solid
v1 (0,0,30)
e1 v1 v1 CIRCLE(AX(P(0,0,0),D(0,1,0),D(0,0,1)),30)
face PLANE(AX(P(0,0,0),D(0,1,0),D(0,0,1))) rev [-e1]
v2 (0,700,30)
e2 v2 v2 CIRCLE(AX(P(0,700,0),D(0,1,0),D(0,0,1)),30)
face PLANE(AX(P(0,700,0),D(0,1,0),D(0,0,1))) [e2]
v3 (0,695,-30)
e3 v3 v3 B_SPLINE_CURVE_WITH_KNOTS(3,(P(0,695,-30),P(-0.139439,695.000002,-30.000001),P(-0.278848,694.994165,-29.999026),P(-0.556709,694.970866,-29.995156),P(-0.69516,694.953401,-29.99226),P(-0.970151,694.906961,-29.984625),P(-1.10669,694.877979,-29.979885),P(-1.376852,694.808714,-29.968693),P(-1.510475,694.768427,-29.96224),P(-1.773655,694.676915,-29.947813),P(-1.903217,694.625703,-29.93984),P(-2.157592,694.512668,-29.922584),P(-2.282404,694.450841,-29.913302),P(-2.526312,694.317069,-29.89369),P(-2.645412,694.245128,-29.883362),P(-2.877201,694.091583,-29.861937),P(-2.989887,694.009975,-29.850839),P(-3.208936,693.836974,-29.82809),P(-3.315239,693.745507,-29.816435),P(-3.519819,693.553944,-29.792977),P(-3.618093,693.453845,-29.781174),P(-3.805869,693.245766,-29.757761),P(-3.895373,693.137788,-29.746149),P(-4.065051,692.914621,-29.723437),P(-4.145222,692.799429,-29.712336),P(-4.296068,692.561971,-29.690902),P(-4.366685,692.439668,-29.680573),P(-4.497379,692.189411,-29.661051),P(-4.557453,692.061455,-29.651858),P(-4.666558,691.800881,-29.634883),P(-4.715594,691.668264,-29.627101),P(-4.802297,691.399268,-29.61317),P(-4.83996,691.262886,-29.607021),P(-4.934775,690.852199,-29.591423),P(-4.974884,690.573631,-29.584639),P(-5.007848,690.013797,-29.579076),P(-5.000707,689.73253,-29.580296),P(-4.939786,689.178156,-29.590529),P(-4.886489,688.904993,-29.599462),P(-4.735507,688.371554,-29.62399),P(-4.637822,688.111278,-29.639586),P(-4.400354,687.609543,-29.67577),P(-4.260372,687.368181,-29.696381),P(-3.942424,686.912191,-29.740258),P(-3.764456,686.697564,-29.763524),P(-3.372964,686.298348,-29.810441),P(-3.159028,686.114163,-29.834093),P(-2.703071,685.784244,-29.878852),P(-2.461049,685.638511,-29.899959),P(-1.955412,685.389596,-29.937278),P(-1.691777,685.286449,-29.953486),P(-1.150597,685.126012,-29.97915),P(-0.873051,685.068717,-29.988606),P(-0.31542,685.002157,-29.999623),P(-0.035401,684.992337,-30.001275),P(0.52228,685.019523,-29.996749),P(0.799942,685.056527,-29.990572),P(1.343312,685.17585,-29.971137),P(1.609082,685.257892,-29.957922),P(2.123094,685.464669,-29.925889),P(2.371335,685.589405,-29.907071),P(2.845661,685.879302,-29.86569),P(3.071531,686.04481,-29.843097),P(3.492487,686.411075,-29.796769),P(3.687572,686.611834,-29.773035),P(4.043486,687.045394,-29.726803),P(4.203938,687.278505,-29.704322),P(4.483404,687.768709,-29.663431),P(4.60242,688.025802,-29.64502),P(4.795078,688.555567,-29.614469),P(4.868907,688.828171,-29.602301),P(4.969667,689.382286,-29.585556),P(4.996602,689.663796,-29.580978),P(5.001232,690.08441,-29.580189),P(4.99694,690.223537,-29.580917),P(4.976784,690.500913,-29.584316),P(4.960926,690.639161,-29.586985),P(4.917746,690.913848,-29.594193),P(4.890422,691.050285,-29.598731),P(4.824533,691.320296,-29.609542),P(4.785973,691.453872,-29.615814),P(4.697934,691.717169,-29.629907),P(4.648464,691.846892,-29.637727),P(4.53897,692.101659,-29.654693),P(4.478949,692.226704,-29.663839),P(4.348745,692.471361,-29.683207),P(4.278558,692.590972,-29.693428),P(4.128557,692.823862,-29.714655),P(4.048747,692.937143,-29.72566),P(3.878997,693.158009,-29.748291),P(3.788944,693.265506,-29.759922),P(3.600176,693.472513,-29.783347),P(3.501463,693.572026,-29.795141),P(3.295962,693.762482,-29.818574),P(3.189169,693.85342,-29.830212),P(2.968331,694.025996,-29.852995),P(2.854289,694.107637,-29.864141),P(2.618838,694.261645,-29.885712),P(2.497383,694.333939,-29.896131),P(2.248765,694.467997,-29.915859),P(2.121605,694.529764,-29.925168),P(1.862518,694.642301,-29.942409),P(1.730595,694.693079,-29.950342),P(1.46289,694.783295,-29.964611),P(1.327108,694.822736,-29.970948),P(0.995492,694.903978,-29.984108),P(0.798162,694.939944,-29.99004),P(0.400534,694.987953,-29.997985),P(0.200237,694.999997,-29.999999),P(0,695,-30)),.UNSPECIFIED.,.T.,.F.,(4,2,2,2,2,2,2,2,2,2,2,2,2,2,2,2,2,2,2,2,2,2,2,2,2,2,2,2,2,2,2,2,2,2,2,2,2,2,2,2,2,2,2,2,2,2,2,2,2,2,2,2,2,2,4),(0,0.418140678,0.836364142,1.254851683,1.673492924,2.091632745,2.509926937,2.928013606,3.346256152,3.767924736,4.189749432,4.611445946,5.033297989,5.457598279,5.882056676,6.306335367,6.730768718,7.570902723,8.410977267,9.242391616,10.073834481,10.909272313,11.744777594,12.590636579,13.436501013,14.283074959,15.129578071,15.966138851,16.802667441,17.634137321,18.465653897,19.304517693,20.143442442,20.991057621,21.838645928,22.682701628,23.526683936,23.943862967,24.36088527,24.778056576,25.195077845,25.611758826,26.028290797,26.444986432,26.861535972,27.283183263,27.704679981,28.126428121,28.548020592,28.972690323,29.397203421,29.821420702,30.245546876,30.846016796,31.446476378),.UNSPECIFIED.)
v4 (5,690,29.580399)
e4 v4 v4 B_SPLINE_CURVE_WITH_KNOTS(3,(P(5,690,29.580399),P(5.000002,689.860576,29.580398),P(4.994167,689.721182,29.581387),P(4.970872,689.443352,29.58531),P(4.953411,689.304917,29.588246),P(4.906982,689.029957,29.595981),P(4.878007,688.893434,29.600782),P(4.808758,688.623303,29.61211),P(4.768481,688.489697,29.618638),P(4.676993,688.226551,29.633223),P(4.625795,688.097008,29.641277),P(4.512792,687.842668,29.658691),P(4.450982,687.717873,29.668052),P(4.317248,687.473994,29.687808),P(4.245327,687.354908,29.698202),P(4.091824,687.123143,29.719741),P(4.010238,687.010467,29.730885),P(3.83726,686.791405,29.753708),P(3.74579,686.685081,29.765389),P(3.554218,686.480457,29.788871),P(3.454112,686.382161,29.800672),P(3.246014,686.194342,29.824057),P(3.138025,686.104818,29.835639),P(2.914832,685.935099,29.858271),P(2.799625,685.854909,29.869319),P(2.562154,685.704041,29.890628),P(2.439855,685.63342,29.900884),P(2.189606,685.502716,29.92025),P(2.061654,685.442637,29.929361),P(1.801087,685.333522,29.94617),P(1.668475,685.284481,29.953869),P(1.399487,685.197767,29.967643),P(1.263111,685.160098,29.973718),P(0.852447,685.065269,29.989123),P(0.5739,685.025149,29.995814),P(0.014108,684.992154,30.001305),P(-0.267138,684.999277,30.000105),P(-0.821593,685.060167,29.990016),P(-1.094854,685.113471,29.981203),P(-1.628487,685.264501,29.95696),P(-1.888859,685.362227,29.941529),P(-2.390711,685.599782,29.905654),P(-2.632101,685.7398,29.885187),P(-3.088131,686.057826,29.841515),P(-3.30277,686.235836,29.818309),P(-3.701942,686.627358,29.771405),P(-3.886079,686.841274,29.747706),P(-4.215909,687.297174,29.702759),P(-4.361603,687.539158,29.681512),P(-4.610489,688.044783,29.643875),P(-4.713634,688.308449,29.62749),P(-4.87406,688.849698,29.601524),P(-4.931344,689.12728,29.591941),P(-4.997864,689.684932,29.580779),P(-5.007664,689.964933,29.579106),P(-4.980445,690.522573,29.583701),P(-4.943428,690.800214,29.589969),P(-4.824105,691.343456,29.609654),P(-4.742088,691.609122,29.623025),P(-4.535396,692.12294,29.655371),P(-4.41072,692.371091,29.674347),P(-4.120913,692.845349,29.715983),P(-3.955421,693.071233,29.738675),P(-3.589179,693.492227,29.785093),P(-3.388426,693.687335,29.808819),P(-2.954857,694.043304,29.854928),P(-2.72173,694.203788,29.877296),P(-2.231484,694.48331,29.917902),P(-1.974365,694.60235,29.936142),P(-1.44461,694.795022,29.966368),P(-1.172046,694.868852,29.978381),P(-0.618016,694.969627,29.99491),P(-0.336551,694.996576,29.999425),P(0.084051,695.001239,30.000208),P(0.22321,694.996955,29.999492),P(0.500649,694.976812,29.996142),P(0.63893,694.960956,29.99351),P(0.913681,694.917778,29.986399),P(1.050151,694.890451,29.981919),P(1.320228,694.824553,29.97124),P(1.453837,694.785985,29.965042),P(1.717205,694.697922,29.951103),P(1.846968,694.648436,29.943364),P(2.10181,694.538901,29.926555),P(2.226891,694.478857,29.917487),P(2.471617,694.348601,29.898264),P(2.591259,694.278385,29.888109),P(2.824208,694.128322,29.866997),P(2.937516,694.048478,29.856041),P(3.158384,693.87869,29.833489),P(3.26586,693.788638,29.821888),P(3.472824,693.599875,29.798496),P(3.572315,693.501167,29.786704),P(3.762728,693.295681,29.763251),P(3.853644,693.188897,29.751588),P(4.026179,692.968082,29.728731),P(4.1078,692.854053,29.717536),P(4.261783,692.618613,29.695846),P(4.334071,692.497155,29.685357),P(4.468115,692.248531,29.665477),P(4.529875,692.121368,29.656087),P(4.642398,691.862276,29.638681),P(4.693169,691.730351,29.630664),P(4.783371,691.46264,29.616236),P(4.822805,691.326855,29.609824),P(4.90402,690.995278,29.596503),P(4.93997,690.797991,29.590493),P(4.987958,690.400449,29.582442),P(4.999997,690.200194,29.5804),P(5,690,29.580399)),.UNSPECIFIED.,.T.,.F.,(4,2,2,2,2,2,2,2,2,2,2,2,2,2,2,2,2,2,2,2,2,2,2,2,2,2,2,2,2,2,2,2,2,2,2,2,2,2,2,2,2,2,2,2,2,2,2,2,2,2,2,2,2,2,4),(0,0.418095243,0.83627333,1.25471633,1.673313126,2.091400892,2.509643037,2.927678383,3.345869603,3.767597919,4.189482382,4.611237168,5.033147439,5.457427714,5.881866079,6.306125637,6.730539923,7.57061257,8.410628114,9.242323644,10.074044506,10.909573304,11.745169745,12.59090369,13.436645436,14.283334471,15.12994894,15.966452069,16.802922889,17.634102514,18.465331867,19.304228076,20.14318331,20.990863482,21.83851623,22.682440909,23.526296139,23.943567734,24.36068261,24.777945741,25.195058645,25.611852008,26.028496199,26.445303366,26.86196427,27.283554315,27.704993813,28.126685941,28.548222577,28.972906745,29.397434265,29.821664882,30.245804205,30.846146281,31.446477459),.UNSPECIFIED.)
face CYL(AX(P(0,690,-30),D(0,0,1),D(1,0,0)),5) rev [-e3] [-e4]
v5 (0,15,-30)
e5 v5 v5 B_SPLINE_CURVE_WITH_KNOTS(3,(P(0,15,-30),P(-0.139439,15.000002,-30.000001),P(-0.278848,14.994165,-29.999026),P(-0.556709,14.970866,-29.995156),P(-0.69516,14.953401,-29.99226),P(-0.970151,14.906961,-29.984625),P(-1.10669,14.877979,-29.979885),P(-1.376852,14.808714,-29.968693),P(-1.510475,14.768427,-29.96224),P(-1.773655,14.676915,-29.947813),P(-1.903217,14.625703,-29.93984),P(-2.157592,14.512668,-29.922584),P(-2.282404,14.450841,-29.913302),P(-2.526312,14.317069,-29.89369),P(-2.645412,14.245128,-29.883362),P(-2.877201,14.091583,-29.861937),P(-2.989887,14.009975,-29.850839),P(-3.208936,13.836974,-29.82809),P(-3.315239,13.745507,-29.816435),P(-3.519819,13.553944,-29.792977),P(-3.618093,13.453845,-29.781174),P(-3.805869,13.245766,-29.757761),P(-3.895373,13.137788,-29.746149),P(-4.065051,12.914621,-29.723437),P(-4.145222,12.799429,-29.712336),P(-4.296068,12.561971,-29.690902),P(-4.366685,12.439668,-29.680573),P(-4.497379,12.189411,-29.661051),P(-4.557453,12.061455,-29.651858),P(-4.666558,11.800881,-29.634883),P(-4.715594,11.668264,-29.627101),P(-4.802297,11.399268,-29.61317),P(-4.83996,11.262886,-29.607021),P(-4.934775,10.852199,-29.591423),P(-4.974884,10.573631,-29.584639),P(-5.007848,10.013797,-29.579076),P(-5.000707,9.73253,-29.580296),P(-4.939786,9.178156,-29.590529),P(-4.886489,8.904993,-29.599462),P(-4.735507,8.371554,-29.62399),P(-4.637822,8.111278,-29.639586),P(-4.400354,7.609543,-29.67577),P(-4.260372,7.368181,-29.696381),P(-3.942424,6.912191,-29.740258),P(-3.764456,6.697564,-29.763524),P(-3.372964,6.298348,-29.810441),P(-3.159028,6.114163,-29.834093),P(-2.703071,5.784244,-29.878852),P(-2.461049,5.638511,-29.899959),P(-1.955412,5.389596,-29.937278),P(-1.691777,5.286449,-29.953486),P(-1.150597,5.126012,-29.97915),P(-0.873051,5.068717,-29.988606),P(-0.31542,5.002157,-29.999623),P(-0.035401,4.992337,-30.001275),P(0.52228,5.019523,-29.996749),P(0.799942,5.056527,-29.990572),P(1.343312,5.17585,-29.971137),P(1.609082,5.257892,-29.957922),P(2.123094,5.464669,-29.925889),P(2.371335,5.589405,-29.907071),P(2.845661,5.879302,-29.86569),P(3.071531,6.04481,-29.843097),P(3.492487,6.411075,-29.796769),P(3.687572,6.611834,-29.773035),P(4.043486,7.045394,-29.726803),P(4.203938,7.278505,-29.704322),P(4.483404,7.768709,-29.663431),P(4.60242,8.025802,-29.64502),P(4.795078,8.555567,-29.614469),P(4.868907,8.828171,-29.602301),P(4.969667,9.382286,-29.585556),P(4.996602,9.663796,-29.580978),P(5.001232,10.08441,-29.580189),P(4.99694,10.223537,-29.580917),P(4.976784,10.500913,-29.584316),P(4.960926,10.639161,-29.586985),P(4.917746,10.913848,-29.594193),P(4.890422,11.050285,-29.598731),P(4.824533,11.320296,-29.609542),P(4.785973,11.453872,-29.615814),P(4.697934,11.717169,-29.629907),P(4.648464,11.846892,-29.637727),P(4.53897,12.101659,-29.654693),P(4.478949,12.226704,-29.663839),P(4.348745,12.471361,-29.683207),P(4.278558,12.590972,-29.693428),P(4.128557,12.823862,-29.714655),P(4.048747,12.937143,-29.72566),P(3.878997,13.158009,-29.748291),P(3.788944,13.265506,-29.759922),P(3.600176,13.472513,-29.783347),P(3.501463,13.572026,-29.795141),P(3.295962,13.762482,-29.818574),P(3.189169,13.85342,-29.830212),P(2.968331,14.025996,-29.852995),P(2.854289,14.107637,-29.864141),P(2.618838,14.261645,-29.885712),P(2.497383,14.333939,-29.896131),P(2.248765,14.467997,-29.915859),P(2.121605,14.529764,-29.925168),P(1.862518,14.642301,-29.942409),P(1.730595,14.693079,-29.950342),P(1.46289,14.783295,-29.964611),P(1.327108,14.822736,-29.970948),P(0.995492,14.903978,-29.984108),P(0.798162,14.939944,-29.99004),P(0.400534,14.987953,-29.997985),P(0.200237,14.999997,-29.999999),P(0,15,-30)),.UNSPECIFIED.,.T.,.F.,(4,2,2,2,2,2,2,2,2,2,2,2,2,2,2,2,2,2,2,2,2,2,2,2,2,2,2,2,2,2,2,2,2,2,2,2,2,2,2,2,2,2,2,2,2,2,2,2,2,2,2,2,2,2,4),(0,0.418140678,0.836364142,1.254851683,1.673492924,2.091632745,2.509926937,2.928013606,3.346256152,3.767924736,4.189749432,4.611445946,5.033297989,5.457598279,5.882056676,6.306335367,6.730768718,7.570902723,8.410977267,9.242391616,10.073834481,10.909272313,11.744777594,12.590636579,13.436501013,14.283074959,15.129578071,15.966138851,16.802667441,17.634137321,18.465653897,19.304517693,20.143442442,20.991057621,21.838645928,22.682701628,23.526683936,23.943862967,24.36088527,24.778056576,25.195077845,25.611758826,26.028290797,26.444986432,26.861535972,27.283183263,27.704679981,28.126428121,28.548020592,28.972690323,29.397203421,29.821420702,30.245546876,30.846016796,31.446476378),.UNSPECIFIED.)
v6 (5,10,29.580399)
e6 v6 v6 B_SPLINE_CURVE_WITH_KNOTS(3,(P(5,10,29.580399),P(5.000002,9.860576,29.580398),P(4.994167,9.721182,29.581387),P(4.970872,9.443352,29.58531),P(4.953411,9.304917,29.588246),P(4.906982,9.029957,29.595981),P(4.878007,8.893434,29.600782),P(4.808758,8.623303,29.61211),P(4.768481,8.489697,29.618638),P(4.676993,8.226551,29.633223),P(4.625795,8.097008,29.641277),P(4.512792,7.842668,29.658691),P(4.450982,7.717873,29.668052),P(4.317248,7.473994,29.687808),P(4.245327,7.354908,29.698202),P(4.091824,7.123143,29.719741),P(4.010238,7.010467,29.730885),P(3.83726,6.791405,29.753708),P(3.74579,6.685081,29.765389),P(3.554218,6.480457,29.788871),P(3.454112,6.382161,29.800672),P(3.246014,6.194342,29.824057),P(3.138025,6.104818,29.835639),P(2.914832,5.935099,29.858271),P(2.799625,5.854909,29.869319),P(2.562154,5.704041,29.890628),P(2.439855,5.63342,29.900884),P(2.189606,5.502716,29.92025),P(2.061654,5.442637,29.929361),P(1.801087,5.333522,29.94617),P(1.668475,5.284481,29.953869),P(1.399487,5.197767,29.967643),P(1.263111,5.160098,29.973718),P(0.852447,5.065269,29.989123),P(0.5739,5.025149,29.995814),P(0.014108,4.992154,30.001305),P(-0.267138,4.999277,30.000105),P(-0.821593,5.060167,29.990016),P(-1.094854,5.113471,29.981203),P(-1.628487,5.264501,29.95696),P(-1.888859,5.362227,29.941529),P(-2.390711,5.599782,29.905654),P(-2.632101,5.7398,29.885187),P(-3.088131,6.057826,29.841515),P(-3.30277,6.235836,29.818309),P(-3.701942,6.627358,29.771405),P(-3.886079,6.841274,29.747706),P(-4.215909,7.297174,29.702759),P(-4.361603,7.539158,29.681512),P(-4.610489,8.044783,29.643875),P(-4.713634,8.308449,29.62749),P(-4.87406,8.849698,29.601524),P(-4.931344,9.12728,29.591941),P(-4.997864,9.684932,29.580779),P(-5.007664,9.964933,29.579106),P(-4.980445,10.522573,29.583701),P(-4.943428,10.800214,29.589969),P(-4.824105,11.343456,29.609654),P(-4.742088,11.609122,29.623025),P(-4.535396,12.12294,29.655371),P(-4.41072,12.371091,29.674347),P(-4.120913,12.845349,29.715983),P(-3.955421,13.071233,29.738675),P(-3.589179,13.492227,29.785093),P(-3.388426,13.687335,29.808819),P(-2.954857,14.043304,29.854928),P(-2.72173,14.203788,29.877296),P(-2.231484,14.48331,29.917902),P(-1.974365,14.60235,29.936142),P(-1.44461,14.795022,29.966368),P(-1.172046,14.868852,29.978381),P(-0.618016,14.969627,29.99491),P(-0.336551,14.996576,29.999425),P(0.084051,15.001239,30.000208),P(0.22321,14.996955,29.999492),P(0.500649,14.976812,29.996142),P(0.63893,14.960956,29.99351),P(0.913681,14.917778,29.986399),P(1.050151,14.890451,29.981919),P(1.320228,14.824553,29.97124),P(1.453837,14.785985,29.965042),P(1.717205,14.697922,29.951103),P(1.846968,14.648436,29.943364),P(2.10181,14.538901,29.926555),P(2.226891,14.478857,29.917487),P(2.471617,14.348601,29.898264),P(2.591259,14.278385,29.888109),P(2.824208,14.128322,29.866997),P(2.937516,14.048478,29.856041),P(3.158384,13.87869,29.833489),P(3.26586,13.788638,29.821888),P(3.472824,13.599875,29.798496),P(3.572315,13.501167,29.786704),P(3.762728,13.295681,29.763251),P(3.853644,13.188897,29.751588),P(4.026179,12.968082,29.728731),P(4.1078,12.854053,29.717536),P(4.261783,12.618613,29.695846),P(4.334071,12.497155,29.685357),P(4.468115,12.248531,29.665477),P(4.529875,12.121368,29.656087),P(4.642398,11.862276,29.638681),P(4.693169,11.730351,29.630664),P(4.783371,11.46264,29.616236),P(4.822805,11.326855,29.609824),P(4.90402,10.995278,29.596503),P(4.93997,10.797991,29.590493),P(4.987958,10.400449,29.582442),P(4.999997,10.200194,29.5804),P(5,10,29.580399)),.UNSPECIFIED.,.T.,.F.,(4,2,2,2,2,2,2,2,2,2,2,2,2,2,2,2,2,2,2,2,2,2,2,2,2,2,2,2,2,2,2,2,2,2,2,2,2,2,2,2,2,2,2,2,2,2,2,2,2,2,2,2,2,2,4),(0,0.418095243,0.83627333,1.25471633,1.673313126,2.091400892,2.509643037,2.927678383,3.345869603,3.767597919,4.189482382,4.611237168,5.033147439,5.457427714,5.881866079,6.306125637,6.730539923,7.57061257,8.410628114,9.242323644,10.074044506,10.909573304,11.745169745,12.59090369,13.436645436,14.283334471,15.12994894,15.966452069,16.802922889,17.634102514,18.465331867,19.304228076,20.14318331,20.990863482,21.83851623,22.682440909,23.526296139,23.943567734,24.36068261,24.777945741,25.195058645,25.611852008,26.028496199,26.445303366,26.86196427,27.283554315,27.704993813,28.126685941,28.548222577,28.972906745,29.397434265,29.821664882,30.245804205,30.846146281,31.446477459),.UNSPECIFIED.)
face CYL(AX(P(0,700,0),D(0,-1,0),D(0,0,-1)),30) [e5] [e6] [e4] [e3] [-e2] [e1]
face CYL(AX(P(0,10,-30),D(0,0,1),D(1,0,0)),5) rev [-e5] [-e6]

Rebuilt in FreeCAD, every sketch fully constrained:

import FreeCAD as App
import Part
import Sketcher
from FreeCAD import Vector
Q = App.Units.Quantity

doc = App.newDocument("Part")
body = doc.addObject("PartDesign::Body", "Body")

# Sketch on XZ plane
sketch1 = doc.addObject("Sketcher::SketchObject", "Sketch")
body.addObject(sketch1)
sketch1.AttachmentSupport = (doc.XZ_Plane, [""])
sketch1.MapMode = "FlatFace"
sketch1.addGeometry(Part.Circle(Vector(0, 0, 0), Vector(0, 0, 1), 30), False)
sketch1.addConstraint([
    Sketcher.Constraint("Coincident", 0, 3, -1, 1),
    Sketcher.Constraint("Diameter", 0, Q("60 mm")),
])
pad1 = doc.addObject("PartDesign::Pad", "Pad")
body.addObject(pad1)
pad1.Profile = sketch1
pad1.Length = 700
pad1.Reversed = True

# Sketch on XY plane
sketch2 = doc.addObject("Sketcher::SketchObject", "Sketch001")
body.addObject(sketch2)
sketch2.AttachmentSupport = (doc.XY_Plane, [""])
sketch2.MapMode = "FlatFace"
sketch2.addGeometry([
    Part.Circle(Vector(0, 690, 0), Vector(0, 0, 1), 5),
    Part.Circle(Vector(0, 10, 0), Vector(0, 0, 1), 5),
], False)
sketch2.addConstraint([
    Sketcher.Constraint("Equal", 0, 1),
    Sketcher.Constraint("PointOnObject", 0, 3, -2),
    Sketcher.Constraint("PointOnObject", 1, 3, -2),
    Sketcher.Constraint("Diameter", 0, Q("10 mm")),
    Sketcher.Constraint("DistanceY", -1, 1, 0, 3, Q("690 mm")),
    Sketcher.Constraint("DistanceY", -1, 1, 1, 3, Q("10 mm")),
])
pocket1 = doc.addObject("PartDesign::Pocket", "Pocket")
body.addObject(pocket1)
pocket1.Profile = sketch2
pocket1.Type = "ThroughAll"
pocket1.Midplane = True

doc.recompute()
